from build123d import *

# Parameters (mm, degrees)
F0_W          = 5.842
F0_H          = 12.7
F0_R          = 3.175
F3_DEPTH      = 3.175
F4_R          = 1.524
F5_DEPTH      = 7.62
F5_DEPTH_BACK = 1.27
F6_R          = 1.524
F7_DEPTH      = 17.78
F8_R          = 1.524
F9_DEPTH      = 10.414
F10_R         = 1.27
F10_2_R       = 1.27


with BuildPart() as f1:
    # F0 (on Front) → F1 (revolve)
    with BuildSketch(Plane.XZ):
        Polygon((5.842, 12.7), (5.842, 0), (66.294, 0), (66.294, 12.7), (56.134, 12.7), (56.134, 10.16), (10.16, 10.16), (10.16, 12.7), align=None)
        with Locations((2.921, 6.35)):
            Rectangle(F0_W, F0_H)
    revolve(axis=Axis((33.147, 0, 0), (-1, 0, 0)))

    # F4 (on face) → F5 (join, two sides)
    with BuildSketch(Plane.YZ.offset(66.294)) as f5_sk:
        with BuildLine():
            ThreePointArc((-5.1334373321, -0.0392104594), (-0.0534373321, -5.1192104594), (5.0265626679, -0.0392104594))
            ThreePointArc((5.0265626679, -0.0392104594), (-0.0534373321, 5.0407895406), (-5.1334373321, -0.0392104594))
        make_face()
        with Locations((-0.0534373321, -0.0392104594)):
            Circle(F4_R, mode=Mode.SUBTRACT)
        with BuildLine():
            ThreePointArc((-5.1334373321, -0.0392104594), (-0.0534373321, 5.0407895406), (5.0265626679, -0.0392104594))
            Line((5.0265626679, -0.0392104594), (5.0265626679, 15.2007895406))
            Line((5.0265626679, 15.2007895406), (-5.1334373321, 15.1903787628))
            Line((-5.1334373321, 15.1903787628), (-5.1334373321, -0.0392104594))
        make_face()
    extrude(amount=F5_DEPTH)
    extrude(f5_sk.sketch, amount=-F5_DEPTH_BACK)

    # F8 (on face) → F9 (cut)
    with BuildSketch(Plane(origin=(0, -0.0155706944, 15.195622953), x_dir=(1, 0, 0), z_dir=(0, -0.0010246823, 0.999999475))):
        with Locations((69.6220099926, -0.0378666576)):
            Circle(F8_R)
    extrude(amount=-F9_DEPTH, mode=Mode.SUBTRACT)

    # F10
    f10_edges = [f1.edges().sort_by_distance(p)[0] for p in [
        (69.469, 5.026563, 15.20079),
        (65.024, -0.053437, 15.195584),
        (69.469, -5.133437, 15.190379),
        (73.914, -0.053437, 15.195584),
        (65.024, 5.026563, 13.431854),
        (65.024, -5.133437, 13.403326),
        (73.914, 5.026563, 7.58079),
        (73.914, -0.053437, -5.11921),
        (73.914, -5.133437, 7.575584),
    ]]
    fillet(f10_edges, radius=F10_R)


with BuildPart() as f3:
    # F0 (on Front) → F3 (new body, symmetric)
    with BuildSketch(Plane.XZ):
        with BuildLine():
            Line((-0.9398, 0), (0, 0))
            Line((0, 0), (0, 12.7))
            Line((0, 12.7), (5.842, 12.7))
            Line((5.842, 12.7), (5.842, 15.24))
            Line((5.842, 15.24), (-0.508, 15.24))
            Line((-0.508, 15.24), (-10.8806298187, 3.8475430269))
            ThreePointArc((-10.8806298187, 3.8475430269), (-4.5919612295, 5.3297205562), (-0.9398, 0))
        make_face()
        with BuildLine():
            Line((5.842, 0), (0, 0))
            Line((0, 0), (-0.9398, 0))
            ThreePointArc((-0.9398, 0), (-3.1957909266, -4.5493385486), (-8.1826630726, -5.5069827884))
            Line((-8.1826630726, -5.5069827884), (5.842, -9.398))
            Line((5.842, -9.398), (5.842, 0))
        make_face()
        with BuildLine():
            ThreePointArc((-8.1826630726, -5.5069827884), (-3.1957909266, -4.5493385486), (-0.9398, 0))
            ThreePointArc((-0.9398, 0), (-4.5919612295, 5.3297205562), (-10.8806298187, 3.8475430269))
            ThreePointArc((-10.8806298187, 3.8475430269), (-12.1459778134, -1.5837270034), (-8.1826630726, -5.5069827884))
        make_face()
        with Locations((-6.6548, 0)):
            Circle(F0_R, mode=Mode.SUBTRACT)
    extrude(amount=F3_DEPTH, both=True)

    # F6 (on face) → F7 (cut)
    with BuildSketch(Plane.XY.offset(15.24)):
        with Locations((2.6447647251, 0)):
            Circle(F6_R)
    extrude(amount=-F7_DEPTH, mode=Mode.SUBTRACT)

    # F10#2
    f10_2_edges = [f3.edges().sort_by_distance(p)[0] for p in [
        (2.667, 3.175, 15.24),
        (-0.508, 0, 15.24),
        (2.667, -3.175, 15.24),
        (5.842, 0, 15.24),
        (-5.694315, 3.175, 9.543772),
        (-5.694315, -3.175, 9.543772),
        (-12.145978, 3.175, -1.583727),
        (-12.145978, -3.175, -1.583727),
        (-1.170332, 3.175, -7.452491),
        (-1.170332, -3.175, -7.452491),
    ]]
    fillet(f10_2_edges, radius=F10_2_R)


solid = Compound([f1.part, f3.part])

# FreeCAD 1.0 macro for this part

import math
import FreeCAD as App
import Part
import Sketcher
from FreeCAD import Vector
Q = App.Units.Quantity


def edges_at(feature, points):
    """Names of the edges that pass closest to the given points."""
    edges = feature.Shape.Edges
    near = lambda p: min(range(len(edges)), key=lambda i: edges[i].distToShape(Part.Vertex(*p))[0])
    return sorted({f"Edge{near(p) + 1}" for p in points})

doc = App.newDocument("Part")
body = doc.addObject("PartDesign::Body", "Body")

# Sketch on XZ plane
sketch1 = doc.addObject("Sketcher::SketchObject", "Sketch")
body.addObject(sketch1)
sketch1.AttachmentSupport = (doc.XZ_Plane, [""])
sketch1.MapMode = "FlatFace"
sketch1.addGeometry(Part.LineSegment(Vector(66.3, 0, 0), Vector(66.3, 12.7, 0)), False)
sketch1.addGeometry(Part.LineSegment(Vector(66.3, 12.7, 0), Vector(56.1, 12.7, 0)), False)
sketch1.addGeometry(Part.LineSegment(Vector(56.1, 12.7, 0), Vector(56.1, 10.2, 0)), False)
sketch1.addGeometry(Part.LineSegment(Vector(56.1, 10.2, 0), Vector(10.2, 10.2, 0)), False)
sketch1.addGeometry(Part.LineSegment(Vector(10.2, 10.2, 0), Vector(10.2, 12.7, 0)), False)
sketch1.addGeometry(Part.LineSegment(Vector(10.2, 12.7, 0), Vector(0, 12.7, 0)), False)
sketch1.addGeometry(Part.LineSegment(Vector(0, 12.7, 0), Vector(0, 0, 0)), False)
sketch1.addGeometry(Part.LineSegment(Vector(0, 0, 0), Vector(66.3, 0, 0)), False)
sketch1.addConstraint(Sketcher.Constraint("Coincident", 0, 2, 1, 1))
sketch1.addConstraint(Sketcher.Constraint("Coincident", 1, 2, 2, 1))
sketch1.addConstraint(Sketcher.Constraint("Coincident", 2, 2, 3, 1))
sketch1.addConstraint(Sketcher.Constraint("Coincident", 3, 2, 4, 1))
sketch1.addConstraint(Sketcher.Constraint("Coincident", 4, 2, 5, 1))
sketch1.addConstraint(Sketcher.Constraint("Coincident", 5, 2, 6, 1))
sketch1.addConstraint(Sketcher.Constraint("Coincident", 6, 2, 7, 1))
sketch1.addConstraint(Sketcher.Constraint("Coincident", 7, 2, 0, 1))
sketch1.addConstraint(Sketcher.Constraint("Vertical", 0))
sketch1.addConstraint(Sketcher.Constraint("Horizontal", 1))
sketch1.addConstraint(Sketcher.Constraint("Vertical", 2))
sketch1.addConstraint(Sketcher.Constraint("Horizontal", 3))
sketch1.addConstraint(Sketcher.Constraint("Vertical", 4))
sketch1.addConstraint(Sketcher.Constraint("Horizontal", 5))
sketch1.addConstraint(Sketcher.Constraint("Vertical", 6))
sketch1.addConstraint(Sketcher.Constraint("Horizontal", 7))
sketch1.addConstraint(Sketcher.Constraint("Coincident", 6, 2, -1, 1))
sketch1.addConstraint(Sketcher.Constraint("Horizontal", 1, 2, 4, 2))
sketch1.addConstraint(Sketcher.Constraint("Equal", 1, 5))
sketch1.addConstraint(Sketcher.Constraint("DistanceX", 1, 2, 1, 1, Q("0.4 in")))
sketch1.addConstraint(Sketcher.Constraint("DistanceY", 0, 1, 0, 2, Q("0.5 in")))
sketch1.addConstraint(Sketcher.Constraint("DistanceY", 2, 2, 2, 1, Q("0.1 in")))
sketch1.addConstraint(Sketcher.Constraint("DistanceX", 3, 2, 3, 1, Q("1.81 in")))
revolution = doc.addObject("PartDesign::Revolution", "Revolution")
body.addObject(revolution)
revolution.Profile = sketch1
revolution.ReferenceAxis = (sketch1, ["H_Axis"])
revolution.Angle = 360

# Sketch on YZ plane
sketch2 = doc.addObject("Sketcher::SketchObject", "Sketch001")
body.addObject(sketch2)
sketch2.AttachmentSupport = (doc.YZ_Plane, [""])
sketch2.MapMode = "FlatFace"
sketch2.AttachmentOffset = App.Placement(Vector(0, 0, 2.61 * 25.4), App.Rotation())
sketch2.addGeometry(Part.ArcOfCircle(Part.Circle(Vector(-0.1, 0, 0), Vector(0, 0, 1), 5.1), math.radians(180), math.radians(360)), False)
sketch2.addGeometry(Part.LineSegment(Vector(5, 0, 0), Vector(5, 15.2, 0)), False)
sketch2.addGeometry(Part.LineSegment(Vector(5, 15.2, 0), Vector(-5.1, 15.2, 0)), False)
sketch2.addGeometry(Part.LineSegment(Vector(-5.1, 15.2, 0), Vector(-5.1, 0, 0)), False)
sketch2.addGeometry(Part.Circle(Vector(-0.1, 0, 0), Vector(0, 0, 1), 1.5), False)
sketch2.addConstraint(Sketcher.Constraint("Tangent", 0, 2, 1, 1))
sketch2.addConstraint(Sketcher.Constraint("Coincident", 1, 2, 2, 1))
sketch2.addConstraint(Sketcher.Constraint("Coincident", 2, 2, 3, 1))
sketch2.addConstraint(Sketcher.Constraint("Tangent", 3, 2, 0, 1))
sketch2.addConstraint(Sketcher.Constraint("Vertical", 1))
sketch2.addConstraint(Sketcher.Constraint("Vertical", 3))
sketch2.addConstraint(Sketcher.Constraint("Coincident", 4, 3, 0, 3))
sketch2.addConstraint(Sketcher.Constraint("Radius", 0, Q("0.2 in")))
sketch2.addConstraint(Sketcher.Constraint("Diameter", 4, Q("0.12 in")))
sketch2.addConstraint(Sketcher.Constraint("DistanceY", 1, 1, 1, 2, Q("0.6 in")))
sketch2.addConstraint(Sketcher.Constraint("DistanceY", 3, 2, 3, 1, Q("15.229589 mm")))
sketch2.addConstraint(Sketcher.Constraint("DistanceY", 0, 3, -1, 1, Q("0.03921 mm")))
sketch2.addConstraint(Sketcher.Constraint("DistanceX", 0, 3, -1, 1, Q("0.053437 mm")))
pad1 = doc.addObject("PartDesign::Pad", "Pad")
body.addObject(pad1)
pad1.Profile = sketch2
pad1.Type = "TwoLengths"
pad1.Length = Q("0.3 in")
pad1.Length2 = Q("0.05 in")

# Sketch on an angled plane
sketch3 = doc.addObject("Sketcher::SketchObject", "Sketch002")
body.addObject(sketch3)
sketch3.Placement = App.Placement(Vector(0, -0.015571, 15.195623), App.Rotation(Vector(1, 0, 0), Vector(0, 0.999999475, 0.001024682), Vector(0, -0.001024682, 0.999999475), "ZXY"))
sketch3.addGeometry(Part.Circle(Vector(69.6, 0, 0), Vector(0, 0, 1), 1.5), False)
sketch3.addConstraint(Sketcher.Constraint("Diameter", 0, Q("0.12 in")))
sketch3.addConstraint(Sketcher.Constraint("DistanceX", -1, 1, 0, 3, Q("69.62201 mm")))
sketch3.addConstraint(Sketcher.Constraint("DistanceY", 0, 3, -1, 1, Q("0.037867 mm")))
pocket1 = doc.addObject("PartDesign::Pocket", "Pocket")
body.addObject(pocket1)
pocket1.Profile = sketch3
pocket1.Length = Q("0.41 in")
doc.recompute()

fillet = doc.addObject("PartDesign::Fillet", "Fillet")
body.addObject(fillet)
fillet.Base = (pocket1, edges_at(pocket1, [
    (69.469, 5.027, 15.201),
    (65.024, -0.053, 15.196),
    (69.469, -5.133, 15.19),
    (73.914, -0.053, 15.196),
    (65.024, 5.027, 13.432),
    (65.024, -5.133, 13.403),
    (73.914, 5.027, 7.581),
    (73.914, -0.053, -5.119),
    (73.914, -5.133, 7.576),
]))
fillet.Radius = Q("0.05 in")
body2 = doc.addObject("PartDesign::Body", "Body001")

# Sketch on XZ plane
sketch4 = doc.addObject("Sketcher::SketchObject", "Sketch003")
body2.addObject(sketch4)
sketch4.AttachmentSupport = (doc.getObject("XZ_Plane001"), [""])
sketch4.MapMode = "FlatFace"
sketch4.addGeometry(Part.LineSegment(Vector(0, 0, 0), Vector(0, 12.7, 0)), False)
sketch4.addGeometry(Part.LineSegment(Vector(0, 12.7, 0), Vector(5.8, 12.7, 0)), False)
sketch4.addGeometry(Part.LineSegment(Vector(5.8, 12.7, 0), Vector(5.8, 15.2, 0)), False)
sketch4.addGeometry(Part.LineSegment(Vector(5.8, 15.2, 0), Vector(-0.5, 15.2, 0)), False)
sketch4.addGeometry(Part.LineSegment(Vector(-0.5, 15.2, 0), Vector(-10.9, 3.8, 0)), False)
sketch4.addGeometry(Part.ArcOfCircle(Part.Circle(Vector(-6.7, 0, 0), Vector(0, 0, 1), 5.7), math.radians(138), math.radians(254)), False)
sketch4.addGeometry(Part.LineSegment(Vector(-8.2, -5.5, 0), Vector(5.8, -9.4, 0)), False)
sketch4.addGeometry(Part.LineSegment(Vector(5.8, -9.4, 0), Vector(5.8, 0, 0)), False)
sketch4.addGeometry(Part.LineSegment(Vector(5.8, 0, 0), Vector(0, 0, 0)), False)
sketch4.addGeometry(Part.Circle(Vector(-6.7, 0, 0), Vector(0, 0, 1), 3.2), False)
sketch4.addConstraint(Sketcher.Constraint("Coincident", 0, 2, 1, 1))
sketch4.addConstraint(Sketcher.Constraint("Coincident", 1, 2, 2, 1))
sketch4.addConstraint(Sketcher.Constraint("Coincident", 2, 2, 3, 1))
sketch4.addConstraint(Sketcher.Constraint("Coincident", 3, 2, 4, 1))
sketch4.addConstraint(Sketcher.Constraint("Tangent", 4, 2, 5, 1))
sketch4.addConstraint(Sketcher.Constraint("Tangent", 5, 2, 6, 1))
sketch4.addConstraint(Sketcher.Constraint("Coincident", 6, 2, 7, 1))
sketch4.addConstraint(Sketcher.Constraint("Coincident", 7, 2, 8, 1))
sketch4.addConstraint(Sketcher.Constraint("Coincident", 8, 2, 0, 1))
sketch4.addConstraint(Sketcher.Constraint("Vertical", 0))
sketch4.addConstraint(Sketcher.Constraint("Horizontal", 1))
sketch4.addConstraint(Sketcher.Constraint("Vertical", 2))
sketch4.addConstraint(Sketcher.Constraint("Horizontal", 3))
sketch4.addConstraint(Sketcher.Constraint("Vertical", 7))
sketch4.addConstraint(Sketcher.Constraint("Horizontal", 8))
sketch4.addConstraint(Sketcher.Constraint("Coincident", 8, 2, -1, 1))
sketch4.addConstraint(Sketcher.Constraint("Coincident", 9, 3, 5, 3))
sketch4.addConstraint(Sketcher.Constraint("PointOnObject", 5, 3, -1))
sketch4.addConstraint(Sketcher.Constraint("Vertical", 2, 2, 6, 2))
sketch4.addConstraint(Sketcher.Constraint("Diameter", 9, Q("0.25 in")))
sketch4.addConstraint(Sketcher.Constraint("DistanceY", 0, 1, 0, 2, Q("0.5 in")))
sketch4.addConstraint(Sketcher.Constraint("DistanceY", 2, 1, 2, 2, Q("0.1 in")))
sketch4.addConstraint(Sketcher.Constraint("Radius", 5, Q("0.225 in")))
sketch4.addConstraint(Sketcher.Constraint("DistanceX", 1, 1, 1, 2, Q("0.23 in")))
sketch4.addConstraint(Sketcher.Constraint("DistanceX", 3, 2, 3, 1, Q("0.25 in")))
sketch4.addConstraint(Sketcher.Constraint("DistanceY", 7, 1, 7, 2, Q("0.37 in")))
sketch4.addConstraint(Sketcher.Constraint("DistanceX", 5, 3, -1, 1, Q("0.262 in")))
pad2 = doc.addObject("PartDesign::Pad", "Pad001")
body2.addObject(pad2)
pad2.Profile = sketch4
pad2.Length = Q("0.25 in")
pad2.Midplane = True

# Sketch on XY plane
sketch5 = doc.addObject("Sketcher::SketchObject", "Sketch004")
body2.addObject(sketch5)
sketch5.AttachmentSupport = (doc.getObject("XY_Plane001"), [""])
sketch5.MapMode = "FlatFace"
sketch5.AttachmentOffset = App.Placement(Vector(0, 0, 0.6 * 25.4), App.Rotation())
sketch5.addGeometry(Part.Circle(Vector(2.6, 0, 0), Vector(0, 0, 1), 1.5), False)
sketch5.addConstraint(Sketcher.Constraint("PointOnObject", 0, 3, -1))
sketch5.addConstraint(Sketcher.Constraint("Diameter", 0, Q("0.12 in")))
sketch5.addConstraint(Sketcher.Constraint("DistanceX", -1, 1, 0, 3, Q("2.644765 mm")))
pocket2 = doc.addObject("PartDesign::Pocket", "Pocket001")
body2.addObject(pocket2)
pocket2.Profile = sketch5
pocket2.Length = Q("0.7 in")
doc.recompute()

fillet2 = doc.addObject("PartDesign::Fillet", "Fillet001")
body2.addObject(fillet2)
fillet2.Base = (pocket2, edges_at(pocket2, [
    (2.667, 3.175, 15.24),
    (-0.508, 0, 15.24),
    (2.667, -3.175, 15.24),
    (5.842, 0, 15.24),
    (-5.694, 3.175, 9.544),
    (-5.694, -3.175, 9.544),
    (-12.146, 3.175, -1.584),
    (-12.146, -3.175, -1.584),
    (-1.17, 3.175, -7.452),
    (-1.17, -3.175, -7.452),
]))
fillet2.Radius = Q("0.05 in")

doc.recompute()
